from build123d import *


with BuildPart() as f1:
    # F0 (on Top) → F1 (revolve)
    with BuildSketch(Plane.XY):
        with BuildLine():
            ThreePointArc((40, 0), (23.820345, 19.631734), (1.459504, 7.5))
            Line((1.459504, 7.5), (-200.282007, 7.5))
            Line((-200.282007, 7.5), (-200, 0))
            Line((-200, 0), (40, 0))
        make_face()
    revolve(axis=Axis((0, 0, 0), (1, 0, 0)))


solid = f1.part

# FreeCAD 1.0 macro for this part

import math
import FreeCAD as App
import Part
import Sketcher
Q = App.Units.Quantity

doc = App.newDocument("Part")
body = doc.addObject("PartDesign::Body", "Body")

# Sketch on XY plane
sketch1 = body.newObject("Sketcher::SketchObject", "Sketch")
sketch1.AttachmentSupport = (doc.getObject("XY_Plane"), [""])
sketch1.MapMode = "FlatFace"
sketch1.addGeometry(Part.ArcOfCircle(Part.Circle(App.Vector(20, 0.000001, 0), App.Vector(0, 0, 1), 20), math.radians(-0.000002), math.radians(157.975689)), False)
sketch1.addGeometry(Part.LineSegment(App.Vector(1.459504, 7.5, 0), App.Vector(-200.282007, 7.5, 0)), False)
sketch1.addGeometry(Part.LineSegment(App.Vector(-200.282007, 7.5, 0), App.Vector(-200, 0, 0)), False)
sketch1.addGeometry(Part.LineSegment(App.Vector(-200, 0, 0), App.Vector(40, 0, 0)), False)
sketch1.addConstraint(Sketcher.Constraint("Coincident", 0, 2, 1, 1))
sketch1.addConstraint(Sketcher.Constraint("Coincident", 1, 2, 2, 1))
sketch1.addConstraint(Sketcher.Constraint("Coincident", 2, 2, 3, 1))
sketch1.addConstraint(Sketcher.Constraint("Coincident", 3, 2, 0, 1))
sketch1.addConstraint(Sketcher.Constraint("Horizontal", 1))
sketch1.addConstraint(Sketcher.Constraint("Horizontal", 3))
sketch1.addConstraint(Sketcher.Constraint("PointOnObject", 0, 3, -1))
sketch1.addConstraint(Sketcher.Constraint("PointOnObject", 2, 2, -1))
sketch1.addConstraint(Sketcher.Constraint("Radius", 0, Q("20 mm")))
sketch1.addConstraint(Sketcher.Constraint("DistanceX", 3, 1, 3, 2, Q("240 mm")))
sketch1.addConstraint(Sketcher.Constraint("DistanceX", -1, 1, 0, 3, Q("20 mm")))
sketch1.addConstraint(Sketcher.Constraint("DistanceY", -1, 1, 0, 2, Q("7.5 mm")))
sketch1.addConstraint(Sketcher.Constraint("Distance", 2, Q("7.5053 mm")))
revolution = body.newObject("PartDesign::Revolution", "Revolution")
revolution.Profile = sketch1
revolution.ReferenceAxis = (sketch1, ["H_Axis"])
revolution.Angle = 360

doc.recompute()
